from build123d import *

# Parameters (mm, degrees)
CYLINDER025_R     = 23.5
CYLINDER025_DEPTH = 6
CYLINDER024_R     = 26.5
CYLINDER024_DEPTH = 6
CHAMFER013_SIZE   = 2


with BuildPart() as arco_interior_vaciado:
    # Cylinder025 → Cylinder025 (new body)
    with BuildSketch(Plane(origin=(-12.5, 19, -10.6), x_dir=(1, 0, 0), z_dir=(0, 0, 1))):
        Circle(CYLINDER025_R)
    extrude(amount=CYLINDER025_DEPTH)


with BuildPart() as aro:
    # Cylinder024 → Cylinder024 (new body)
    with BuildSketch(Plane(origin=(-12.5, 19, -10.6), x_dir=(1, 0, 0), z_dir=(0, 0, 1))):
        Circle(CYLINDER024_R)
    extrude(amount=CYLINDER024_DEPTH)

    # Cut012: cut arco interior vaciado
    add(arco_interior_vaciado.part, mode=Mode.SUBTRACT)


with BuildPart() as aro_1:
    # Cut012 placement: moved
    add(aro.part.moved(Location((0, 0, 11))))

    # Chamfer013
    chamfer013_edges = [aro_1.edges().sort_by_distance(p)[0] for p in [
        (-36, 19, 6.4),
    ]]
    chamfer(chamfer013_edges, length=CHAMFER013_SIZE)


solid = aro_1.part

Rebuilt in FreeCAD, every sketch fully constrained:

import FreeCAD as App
import Part
import Sketcher

V = App.Vector
Q = App.Units.Quantity


def edges_at(feature, points):
    """Names of the edges that pass closest to the given points."""
    edges = feature.Shape.Edges
    near = lambda p: min(range(len(edges)), key=lambda i: edges[i].distToShape(Part.Vertex(*p))[0])
    return sorted({f"Edge{near(p) + 1}" for p in points})

doc = App.newDocument("Part")
body = doc.addObject("PartDesign::Body", "Body")

sketch1 = doc.addObject("Sketcher::SketchObject", "Sketch")
body.addObject(sketch1)
sketch1.AttachmentSupport = (doc.XY_Plane, [""])
sketch1.MapMode = "FlatFace"
sketch1.AttachmentOffset = App.Placement(V(0, 0, -10.6), App.Rotation())
sketch1.addGeometry(Part.Circle(V(-12, 19, 0), V(0, 0, 1), 24), False)
sketch1.addConstraint(Sketcher.Constraint("Diameter", 0, Q("47 mm")))
sketch1.addConstraint(Sketcher.Constraint("DistanceY", -1, 1, 0, 3, Q("19 mm")))
sketch1.addConstraint(Sketcher.Constraint("DistanceX", 0, 3, -1, 1, Q("12.5 mm")))
pad1 = doc.addObject("PartDesign::Pad", "Pad")
body.addObject(pad1)
pad1.Profile = sketch1
pad1.Length = 6
body2 = doc.addObject("PartDesign::Body", "Body001")

sketch2 = doc.addObject("Sketcher::SketchObject", "Sketch001")
body2.addObject(sketch2)
sketch2.AttachmentSupport = (doc.getObject("XY_Plane001"), [""])
sketch2.MapMode = "FlatFace"
sketch2.AttachmentOffset = App.Placement(V(0, 0, -10.6), App.Rotation())
sketch2.addGeometry(Part.Circle(V(-12, 19, 0), V(0, 0, 1), 26), False)
sketch2.addConstraint(Sketcher.Constraint("Diameter", 0, Q("53 mm")))
sketch2.addConstraint(Sketcher.Constraint("DistanceY", -1, 1, 0, 3, Q("19 mm")))
sketch2.addConstraint(Sketcher.Constraint("DistanceX", 0, 3, -1, 1, Q("12.5 mm")))
pad2 = doc.addObject("PartDesign::Pad", "Pad001")
body2.addObject(pad2)
pad2.Profile = sketch2
pad2.Length = 6
doc.recompute()

boolean = doc.addObject("PartDesign::Boolean", "Boolean")
body2.addObject(boolean)
boolean.Type = "Cut"
boolean.addObjects([body])
body3 = doc.addObject("PartDesign::Body", "Body002")
doc.recompute()

body2.Placement = App.Placement(V(0, 0, 11), App.Rotation(V(0, 0, 1), 0))
boolean2 = doc.addObject("PartDesign::Boolean", "Boolean001")
body3.addObject(boolean2)
boolean2.Type = "Fuse"
boolean2.addObjects([body2])
doc.recompute()

chamfer = doc.addObject("PartDesign::Chamfer", "Chamfer")
body3.addObject(chamfer)
chamfer.Base = (boolean2, edges_at(boolean2, [(-36, 19, 6.4)]))
chamfer.Size = 2

doc.recompute()
